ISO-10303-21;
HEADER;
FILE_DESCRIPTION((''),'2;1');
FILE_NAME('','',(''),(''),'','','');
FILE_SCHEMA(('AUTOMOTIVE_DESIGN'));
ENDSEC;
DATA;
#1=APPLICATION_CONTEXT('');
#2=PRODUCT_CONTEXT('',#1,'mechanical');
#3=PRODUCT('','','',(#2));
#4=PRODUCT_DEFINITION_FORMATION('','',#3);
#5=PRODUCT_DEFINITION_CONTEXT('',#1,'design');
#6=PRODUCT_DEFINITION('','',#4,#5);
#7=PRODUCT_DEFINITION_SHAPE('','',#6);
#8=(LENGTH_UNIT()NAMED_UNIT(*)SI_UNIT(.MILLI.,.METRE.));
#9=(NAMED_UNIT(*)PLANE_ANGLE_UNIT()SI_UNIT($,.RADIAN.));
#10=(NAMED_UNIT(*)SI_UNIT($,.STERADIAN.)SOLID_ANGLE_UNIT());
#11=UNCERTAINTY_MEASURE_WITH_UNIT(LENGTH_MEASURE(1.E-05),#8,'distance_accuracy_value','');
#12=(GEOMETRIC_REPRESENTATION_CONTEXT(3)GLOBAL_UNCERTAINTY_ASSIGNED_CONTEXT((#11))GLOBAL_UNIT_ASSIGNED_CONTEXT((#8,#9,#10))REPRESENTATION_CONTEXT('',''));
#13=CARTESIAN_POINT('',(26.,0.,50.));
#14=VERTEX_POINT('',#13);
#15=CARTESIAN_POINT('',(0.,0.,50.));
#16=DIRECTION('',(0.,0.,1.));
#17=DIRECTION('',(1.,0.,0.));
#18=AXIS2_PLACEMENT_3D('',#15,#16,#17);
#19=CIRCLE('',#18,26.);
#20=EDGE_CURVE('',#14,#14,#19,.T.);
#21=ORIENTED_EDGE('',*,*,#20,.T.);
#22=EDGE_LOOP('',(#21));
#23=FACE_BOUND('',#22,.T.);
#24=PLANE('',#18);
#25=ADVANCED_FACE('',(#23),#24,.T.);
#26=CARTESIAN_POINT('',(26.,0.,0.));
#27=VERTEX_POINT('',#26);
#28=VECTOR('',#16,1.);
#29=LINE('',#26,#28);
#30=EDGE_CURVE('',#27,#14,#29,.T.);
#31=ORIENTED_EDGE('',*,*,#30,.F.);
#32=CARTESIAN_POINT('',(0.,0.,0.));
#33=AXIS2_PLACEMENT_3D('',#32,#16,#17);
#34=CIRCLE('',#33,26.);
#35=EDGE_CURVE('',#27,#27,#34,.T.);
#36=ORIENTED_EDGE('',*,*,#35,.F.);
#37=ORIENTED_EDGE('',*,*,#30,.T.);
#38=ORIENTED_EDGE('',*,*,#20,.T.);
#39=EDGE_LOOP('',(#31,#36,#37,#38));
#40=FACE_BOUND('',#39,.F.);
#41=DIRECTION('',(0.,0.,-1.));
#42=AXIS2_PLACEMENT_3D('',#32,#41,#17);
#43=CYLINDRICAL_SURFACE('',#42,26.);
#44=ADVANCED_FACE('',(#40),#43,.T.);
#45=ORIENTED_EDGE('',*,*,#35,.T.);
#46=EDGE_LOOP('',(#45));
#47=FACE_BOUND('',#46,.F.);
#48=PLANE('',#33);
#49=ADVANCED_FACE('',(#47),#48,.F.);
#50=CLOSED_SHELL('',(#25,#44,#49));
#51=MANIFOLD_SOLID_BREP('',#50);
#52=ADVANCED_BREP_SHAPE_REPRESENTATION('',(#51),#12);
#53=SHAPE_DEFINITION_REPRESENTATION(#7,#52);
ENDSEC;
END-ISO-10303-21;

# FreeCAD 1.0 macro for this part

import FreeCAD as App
import Part
import Sketcher

doc = App.newDocument("Part")
body = doc.addObject("PartDesign::Body", "Body")

sketch1 = doc.addObject("Sketcher::SketchObject", "Sketch")
body.addObject(sketch1)
sketch1.AttachmentSupport = (doc.XY_Plane, [""])
sketch1.MapMode = "FlatFace"
sketch1.addGeometry(Part.Circle(App.Vector(0, 0, 0), App.Vector(0, 0, 1), 26), False)
sketch1.addConstraint(Sketcher.Constraint("Coincident", 0, 3, -1, 1))
sketch1.addConstraint(Sketcher.Constraint("Diameter", 0, 52.0))
pad1 = doc.addObject("PartDesign::Pad", "Pad")
body.addObject(pad1)
pad1.Profile = sketch1
pad1.Length = 50

sketch2 = doc.addObject("Sketcher::SketchObject", "Sketch001")
body.addObject(sketch2)
sketch2.AttachmentSupport = (doc.XY_Plane, [""])
sketch2.MapMode = "FlatFace"
sketch2.AttachmentOffset = App.Placement(App.Vector(0, 0, 50), App.Rotation())
sketch2.addGeometry(Part.Circle(App.Vector(0, 0, 0), App.Vector(0, 0, 1), 38), False)
sketch2.addGeometry(Part.Circle(App.Vector(0, 0, 0), App.Vector(0, 0, 1), 26), False)
sketch2.addConstraint(Sketcher.Constraint("Coincident", 0, 3, -1, 1))
sketch2.addConstraint(Sketcher.Constraint("Coincident", 1, 3, -1, 1))
sketch2.addConstraint(Sketcher.Constraint("Diameter", 0, 75.0))
sketch2.addConstraint(Sketcher.Constraint("Diameter", 1, 52.0))
pocket1 = doc.addObject("PartDesign::Pocket", "Pocket")
body.addObject(pocket1)
pocket1.Profile = sketch2
pocket1.Length = 25
pocket1.Reversed = True

doc.recompute()
